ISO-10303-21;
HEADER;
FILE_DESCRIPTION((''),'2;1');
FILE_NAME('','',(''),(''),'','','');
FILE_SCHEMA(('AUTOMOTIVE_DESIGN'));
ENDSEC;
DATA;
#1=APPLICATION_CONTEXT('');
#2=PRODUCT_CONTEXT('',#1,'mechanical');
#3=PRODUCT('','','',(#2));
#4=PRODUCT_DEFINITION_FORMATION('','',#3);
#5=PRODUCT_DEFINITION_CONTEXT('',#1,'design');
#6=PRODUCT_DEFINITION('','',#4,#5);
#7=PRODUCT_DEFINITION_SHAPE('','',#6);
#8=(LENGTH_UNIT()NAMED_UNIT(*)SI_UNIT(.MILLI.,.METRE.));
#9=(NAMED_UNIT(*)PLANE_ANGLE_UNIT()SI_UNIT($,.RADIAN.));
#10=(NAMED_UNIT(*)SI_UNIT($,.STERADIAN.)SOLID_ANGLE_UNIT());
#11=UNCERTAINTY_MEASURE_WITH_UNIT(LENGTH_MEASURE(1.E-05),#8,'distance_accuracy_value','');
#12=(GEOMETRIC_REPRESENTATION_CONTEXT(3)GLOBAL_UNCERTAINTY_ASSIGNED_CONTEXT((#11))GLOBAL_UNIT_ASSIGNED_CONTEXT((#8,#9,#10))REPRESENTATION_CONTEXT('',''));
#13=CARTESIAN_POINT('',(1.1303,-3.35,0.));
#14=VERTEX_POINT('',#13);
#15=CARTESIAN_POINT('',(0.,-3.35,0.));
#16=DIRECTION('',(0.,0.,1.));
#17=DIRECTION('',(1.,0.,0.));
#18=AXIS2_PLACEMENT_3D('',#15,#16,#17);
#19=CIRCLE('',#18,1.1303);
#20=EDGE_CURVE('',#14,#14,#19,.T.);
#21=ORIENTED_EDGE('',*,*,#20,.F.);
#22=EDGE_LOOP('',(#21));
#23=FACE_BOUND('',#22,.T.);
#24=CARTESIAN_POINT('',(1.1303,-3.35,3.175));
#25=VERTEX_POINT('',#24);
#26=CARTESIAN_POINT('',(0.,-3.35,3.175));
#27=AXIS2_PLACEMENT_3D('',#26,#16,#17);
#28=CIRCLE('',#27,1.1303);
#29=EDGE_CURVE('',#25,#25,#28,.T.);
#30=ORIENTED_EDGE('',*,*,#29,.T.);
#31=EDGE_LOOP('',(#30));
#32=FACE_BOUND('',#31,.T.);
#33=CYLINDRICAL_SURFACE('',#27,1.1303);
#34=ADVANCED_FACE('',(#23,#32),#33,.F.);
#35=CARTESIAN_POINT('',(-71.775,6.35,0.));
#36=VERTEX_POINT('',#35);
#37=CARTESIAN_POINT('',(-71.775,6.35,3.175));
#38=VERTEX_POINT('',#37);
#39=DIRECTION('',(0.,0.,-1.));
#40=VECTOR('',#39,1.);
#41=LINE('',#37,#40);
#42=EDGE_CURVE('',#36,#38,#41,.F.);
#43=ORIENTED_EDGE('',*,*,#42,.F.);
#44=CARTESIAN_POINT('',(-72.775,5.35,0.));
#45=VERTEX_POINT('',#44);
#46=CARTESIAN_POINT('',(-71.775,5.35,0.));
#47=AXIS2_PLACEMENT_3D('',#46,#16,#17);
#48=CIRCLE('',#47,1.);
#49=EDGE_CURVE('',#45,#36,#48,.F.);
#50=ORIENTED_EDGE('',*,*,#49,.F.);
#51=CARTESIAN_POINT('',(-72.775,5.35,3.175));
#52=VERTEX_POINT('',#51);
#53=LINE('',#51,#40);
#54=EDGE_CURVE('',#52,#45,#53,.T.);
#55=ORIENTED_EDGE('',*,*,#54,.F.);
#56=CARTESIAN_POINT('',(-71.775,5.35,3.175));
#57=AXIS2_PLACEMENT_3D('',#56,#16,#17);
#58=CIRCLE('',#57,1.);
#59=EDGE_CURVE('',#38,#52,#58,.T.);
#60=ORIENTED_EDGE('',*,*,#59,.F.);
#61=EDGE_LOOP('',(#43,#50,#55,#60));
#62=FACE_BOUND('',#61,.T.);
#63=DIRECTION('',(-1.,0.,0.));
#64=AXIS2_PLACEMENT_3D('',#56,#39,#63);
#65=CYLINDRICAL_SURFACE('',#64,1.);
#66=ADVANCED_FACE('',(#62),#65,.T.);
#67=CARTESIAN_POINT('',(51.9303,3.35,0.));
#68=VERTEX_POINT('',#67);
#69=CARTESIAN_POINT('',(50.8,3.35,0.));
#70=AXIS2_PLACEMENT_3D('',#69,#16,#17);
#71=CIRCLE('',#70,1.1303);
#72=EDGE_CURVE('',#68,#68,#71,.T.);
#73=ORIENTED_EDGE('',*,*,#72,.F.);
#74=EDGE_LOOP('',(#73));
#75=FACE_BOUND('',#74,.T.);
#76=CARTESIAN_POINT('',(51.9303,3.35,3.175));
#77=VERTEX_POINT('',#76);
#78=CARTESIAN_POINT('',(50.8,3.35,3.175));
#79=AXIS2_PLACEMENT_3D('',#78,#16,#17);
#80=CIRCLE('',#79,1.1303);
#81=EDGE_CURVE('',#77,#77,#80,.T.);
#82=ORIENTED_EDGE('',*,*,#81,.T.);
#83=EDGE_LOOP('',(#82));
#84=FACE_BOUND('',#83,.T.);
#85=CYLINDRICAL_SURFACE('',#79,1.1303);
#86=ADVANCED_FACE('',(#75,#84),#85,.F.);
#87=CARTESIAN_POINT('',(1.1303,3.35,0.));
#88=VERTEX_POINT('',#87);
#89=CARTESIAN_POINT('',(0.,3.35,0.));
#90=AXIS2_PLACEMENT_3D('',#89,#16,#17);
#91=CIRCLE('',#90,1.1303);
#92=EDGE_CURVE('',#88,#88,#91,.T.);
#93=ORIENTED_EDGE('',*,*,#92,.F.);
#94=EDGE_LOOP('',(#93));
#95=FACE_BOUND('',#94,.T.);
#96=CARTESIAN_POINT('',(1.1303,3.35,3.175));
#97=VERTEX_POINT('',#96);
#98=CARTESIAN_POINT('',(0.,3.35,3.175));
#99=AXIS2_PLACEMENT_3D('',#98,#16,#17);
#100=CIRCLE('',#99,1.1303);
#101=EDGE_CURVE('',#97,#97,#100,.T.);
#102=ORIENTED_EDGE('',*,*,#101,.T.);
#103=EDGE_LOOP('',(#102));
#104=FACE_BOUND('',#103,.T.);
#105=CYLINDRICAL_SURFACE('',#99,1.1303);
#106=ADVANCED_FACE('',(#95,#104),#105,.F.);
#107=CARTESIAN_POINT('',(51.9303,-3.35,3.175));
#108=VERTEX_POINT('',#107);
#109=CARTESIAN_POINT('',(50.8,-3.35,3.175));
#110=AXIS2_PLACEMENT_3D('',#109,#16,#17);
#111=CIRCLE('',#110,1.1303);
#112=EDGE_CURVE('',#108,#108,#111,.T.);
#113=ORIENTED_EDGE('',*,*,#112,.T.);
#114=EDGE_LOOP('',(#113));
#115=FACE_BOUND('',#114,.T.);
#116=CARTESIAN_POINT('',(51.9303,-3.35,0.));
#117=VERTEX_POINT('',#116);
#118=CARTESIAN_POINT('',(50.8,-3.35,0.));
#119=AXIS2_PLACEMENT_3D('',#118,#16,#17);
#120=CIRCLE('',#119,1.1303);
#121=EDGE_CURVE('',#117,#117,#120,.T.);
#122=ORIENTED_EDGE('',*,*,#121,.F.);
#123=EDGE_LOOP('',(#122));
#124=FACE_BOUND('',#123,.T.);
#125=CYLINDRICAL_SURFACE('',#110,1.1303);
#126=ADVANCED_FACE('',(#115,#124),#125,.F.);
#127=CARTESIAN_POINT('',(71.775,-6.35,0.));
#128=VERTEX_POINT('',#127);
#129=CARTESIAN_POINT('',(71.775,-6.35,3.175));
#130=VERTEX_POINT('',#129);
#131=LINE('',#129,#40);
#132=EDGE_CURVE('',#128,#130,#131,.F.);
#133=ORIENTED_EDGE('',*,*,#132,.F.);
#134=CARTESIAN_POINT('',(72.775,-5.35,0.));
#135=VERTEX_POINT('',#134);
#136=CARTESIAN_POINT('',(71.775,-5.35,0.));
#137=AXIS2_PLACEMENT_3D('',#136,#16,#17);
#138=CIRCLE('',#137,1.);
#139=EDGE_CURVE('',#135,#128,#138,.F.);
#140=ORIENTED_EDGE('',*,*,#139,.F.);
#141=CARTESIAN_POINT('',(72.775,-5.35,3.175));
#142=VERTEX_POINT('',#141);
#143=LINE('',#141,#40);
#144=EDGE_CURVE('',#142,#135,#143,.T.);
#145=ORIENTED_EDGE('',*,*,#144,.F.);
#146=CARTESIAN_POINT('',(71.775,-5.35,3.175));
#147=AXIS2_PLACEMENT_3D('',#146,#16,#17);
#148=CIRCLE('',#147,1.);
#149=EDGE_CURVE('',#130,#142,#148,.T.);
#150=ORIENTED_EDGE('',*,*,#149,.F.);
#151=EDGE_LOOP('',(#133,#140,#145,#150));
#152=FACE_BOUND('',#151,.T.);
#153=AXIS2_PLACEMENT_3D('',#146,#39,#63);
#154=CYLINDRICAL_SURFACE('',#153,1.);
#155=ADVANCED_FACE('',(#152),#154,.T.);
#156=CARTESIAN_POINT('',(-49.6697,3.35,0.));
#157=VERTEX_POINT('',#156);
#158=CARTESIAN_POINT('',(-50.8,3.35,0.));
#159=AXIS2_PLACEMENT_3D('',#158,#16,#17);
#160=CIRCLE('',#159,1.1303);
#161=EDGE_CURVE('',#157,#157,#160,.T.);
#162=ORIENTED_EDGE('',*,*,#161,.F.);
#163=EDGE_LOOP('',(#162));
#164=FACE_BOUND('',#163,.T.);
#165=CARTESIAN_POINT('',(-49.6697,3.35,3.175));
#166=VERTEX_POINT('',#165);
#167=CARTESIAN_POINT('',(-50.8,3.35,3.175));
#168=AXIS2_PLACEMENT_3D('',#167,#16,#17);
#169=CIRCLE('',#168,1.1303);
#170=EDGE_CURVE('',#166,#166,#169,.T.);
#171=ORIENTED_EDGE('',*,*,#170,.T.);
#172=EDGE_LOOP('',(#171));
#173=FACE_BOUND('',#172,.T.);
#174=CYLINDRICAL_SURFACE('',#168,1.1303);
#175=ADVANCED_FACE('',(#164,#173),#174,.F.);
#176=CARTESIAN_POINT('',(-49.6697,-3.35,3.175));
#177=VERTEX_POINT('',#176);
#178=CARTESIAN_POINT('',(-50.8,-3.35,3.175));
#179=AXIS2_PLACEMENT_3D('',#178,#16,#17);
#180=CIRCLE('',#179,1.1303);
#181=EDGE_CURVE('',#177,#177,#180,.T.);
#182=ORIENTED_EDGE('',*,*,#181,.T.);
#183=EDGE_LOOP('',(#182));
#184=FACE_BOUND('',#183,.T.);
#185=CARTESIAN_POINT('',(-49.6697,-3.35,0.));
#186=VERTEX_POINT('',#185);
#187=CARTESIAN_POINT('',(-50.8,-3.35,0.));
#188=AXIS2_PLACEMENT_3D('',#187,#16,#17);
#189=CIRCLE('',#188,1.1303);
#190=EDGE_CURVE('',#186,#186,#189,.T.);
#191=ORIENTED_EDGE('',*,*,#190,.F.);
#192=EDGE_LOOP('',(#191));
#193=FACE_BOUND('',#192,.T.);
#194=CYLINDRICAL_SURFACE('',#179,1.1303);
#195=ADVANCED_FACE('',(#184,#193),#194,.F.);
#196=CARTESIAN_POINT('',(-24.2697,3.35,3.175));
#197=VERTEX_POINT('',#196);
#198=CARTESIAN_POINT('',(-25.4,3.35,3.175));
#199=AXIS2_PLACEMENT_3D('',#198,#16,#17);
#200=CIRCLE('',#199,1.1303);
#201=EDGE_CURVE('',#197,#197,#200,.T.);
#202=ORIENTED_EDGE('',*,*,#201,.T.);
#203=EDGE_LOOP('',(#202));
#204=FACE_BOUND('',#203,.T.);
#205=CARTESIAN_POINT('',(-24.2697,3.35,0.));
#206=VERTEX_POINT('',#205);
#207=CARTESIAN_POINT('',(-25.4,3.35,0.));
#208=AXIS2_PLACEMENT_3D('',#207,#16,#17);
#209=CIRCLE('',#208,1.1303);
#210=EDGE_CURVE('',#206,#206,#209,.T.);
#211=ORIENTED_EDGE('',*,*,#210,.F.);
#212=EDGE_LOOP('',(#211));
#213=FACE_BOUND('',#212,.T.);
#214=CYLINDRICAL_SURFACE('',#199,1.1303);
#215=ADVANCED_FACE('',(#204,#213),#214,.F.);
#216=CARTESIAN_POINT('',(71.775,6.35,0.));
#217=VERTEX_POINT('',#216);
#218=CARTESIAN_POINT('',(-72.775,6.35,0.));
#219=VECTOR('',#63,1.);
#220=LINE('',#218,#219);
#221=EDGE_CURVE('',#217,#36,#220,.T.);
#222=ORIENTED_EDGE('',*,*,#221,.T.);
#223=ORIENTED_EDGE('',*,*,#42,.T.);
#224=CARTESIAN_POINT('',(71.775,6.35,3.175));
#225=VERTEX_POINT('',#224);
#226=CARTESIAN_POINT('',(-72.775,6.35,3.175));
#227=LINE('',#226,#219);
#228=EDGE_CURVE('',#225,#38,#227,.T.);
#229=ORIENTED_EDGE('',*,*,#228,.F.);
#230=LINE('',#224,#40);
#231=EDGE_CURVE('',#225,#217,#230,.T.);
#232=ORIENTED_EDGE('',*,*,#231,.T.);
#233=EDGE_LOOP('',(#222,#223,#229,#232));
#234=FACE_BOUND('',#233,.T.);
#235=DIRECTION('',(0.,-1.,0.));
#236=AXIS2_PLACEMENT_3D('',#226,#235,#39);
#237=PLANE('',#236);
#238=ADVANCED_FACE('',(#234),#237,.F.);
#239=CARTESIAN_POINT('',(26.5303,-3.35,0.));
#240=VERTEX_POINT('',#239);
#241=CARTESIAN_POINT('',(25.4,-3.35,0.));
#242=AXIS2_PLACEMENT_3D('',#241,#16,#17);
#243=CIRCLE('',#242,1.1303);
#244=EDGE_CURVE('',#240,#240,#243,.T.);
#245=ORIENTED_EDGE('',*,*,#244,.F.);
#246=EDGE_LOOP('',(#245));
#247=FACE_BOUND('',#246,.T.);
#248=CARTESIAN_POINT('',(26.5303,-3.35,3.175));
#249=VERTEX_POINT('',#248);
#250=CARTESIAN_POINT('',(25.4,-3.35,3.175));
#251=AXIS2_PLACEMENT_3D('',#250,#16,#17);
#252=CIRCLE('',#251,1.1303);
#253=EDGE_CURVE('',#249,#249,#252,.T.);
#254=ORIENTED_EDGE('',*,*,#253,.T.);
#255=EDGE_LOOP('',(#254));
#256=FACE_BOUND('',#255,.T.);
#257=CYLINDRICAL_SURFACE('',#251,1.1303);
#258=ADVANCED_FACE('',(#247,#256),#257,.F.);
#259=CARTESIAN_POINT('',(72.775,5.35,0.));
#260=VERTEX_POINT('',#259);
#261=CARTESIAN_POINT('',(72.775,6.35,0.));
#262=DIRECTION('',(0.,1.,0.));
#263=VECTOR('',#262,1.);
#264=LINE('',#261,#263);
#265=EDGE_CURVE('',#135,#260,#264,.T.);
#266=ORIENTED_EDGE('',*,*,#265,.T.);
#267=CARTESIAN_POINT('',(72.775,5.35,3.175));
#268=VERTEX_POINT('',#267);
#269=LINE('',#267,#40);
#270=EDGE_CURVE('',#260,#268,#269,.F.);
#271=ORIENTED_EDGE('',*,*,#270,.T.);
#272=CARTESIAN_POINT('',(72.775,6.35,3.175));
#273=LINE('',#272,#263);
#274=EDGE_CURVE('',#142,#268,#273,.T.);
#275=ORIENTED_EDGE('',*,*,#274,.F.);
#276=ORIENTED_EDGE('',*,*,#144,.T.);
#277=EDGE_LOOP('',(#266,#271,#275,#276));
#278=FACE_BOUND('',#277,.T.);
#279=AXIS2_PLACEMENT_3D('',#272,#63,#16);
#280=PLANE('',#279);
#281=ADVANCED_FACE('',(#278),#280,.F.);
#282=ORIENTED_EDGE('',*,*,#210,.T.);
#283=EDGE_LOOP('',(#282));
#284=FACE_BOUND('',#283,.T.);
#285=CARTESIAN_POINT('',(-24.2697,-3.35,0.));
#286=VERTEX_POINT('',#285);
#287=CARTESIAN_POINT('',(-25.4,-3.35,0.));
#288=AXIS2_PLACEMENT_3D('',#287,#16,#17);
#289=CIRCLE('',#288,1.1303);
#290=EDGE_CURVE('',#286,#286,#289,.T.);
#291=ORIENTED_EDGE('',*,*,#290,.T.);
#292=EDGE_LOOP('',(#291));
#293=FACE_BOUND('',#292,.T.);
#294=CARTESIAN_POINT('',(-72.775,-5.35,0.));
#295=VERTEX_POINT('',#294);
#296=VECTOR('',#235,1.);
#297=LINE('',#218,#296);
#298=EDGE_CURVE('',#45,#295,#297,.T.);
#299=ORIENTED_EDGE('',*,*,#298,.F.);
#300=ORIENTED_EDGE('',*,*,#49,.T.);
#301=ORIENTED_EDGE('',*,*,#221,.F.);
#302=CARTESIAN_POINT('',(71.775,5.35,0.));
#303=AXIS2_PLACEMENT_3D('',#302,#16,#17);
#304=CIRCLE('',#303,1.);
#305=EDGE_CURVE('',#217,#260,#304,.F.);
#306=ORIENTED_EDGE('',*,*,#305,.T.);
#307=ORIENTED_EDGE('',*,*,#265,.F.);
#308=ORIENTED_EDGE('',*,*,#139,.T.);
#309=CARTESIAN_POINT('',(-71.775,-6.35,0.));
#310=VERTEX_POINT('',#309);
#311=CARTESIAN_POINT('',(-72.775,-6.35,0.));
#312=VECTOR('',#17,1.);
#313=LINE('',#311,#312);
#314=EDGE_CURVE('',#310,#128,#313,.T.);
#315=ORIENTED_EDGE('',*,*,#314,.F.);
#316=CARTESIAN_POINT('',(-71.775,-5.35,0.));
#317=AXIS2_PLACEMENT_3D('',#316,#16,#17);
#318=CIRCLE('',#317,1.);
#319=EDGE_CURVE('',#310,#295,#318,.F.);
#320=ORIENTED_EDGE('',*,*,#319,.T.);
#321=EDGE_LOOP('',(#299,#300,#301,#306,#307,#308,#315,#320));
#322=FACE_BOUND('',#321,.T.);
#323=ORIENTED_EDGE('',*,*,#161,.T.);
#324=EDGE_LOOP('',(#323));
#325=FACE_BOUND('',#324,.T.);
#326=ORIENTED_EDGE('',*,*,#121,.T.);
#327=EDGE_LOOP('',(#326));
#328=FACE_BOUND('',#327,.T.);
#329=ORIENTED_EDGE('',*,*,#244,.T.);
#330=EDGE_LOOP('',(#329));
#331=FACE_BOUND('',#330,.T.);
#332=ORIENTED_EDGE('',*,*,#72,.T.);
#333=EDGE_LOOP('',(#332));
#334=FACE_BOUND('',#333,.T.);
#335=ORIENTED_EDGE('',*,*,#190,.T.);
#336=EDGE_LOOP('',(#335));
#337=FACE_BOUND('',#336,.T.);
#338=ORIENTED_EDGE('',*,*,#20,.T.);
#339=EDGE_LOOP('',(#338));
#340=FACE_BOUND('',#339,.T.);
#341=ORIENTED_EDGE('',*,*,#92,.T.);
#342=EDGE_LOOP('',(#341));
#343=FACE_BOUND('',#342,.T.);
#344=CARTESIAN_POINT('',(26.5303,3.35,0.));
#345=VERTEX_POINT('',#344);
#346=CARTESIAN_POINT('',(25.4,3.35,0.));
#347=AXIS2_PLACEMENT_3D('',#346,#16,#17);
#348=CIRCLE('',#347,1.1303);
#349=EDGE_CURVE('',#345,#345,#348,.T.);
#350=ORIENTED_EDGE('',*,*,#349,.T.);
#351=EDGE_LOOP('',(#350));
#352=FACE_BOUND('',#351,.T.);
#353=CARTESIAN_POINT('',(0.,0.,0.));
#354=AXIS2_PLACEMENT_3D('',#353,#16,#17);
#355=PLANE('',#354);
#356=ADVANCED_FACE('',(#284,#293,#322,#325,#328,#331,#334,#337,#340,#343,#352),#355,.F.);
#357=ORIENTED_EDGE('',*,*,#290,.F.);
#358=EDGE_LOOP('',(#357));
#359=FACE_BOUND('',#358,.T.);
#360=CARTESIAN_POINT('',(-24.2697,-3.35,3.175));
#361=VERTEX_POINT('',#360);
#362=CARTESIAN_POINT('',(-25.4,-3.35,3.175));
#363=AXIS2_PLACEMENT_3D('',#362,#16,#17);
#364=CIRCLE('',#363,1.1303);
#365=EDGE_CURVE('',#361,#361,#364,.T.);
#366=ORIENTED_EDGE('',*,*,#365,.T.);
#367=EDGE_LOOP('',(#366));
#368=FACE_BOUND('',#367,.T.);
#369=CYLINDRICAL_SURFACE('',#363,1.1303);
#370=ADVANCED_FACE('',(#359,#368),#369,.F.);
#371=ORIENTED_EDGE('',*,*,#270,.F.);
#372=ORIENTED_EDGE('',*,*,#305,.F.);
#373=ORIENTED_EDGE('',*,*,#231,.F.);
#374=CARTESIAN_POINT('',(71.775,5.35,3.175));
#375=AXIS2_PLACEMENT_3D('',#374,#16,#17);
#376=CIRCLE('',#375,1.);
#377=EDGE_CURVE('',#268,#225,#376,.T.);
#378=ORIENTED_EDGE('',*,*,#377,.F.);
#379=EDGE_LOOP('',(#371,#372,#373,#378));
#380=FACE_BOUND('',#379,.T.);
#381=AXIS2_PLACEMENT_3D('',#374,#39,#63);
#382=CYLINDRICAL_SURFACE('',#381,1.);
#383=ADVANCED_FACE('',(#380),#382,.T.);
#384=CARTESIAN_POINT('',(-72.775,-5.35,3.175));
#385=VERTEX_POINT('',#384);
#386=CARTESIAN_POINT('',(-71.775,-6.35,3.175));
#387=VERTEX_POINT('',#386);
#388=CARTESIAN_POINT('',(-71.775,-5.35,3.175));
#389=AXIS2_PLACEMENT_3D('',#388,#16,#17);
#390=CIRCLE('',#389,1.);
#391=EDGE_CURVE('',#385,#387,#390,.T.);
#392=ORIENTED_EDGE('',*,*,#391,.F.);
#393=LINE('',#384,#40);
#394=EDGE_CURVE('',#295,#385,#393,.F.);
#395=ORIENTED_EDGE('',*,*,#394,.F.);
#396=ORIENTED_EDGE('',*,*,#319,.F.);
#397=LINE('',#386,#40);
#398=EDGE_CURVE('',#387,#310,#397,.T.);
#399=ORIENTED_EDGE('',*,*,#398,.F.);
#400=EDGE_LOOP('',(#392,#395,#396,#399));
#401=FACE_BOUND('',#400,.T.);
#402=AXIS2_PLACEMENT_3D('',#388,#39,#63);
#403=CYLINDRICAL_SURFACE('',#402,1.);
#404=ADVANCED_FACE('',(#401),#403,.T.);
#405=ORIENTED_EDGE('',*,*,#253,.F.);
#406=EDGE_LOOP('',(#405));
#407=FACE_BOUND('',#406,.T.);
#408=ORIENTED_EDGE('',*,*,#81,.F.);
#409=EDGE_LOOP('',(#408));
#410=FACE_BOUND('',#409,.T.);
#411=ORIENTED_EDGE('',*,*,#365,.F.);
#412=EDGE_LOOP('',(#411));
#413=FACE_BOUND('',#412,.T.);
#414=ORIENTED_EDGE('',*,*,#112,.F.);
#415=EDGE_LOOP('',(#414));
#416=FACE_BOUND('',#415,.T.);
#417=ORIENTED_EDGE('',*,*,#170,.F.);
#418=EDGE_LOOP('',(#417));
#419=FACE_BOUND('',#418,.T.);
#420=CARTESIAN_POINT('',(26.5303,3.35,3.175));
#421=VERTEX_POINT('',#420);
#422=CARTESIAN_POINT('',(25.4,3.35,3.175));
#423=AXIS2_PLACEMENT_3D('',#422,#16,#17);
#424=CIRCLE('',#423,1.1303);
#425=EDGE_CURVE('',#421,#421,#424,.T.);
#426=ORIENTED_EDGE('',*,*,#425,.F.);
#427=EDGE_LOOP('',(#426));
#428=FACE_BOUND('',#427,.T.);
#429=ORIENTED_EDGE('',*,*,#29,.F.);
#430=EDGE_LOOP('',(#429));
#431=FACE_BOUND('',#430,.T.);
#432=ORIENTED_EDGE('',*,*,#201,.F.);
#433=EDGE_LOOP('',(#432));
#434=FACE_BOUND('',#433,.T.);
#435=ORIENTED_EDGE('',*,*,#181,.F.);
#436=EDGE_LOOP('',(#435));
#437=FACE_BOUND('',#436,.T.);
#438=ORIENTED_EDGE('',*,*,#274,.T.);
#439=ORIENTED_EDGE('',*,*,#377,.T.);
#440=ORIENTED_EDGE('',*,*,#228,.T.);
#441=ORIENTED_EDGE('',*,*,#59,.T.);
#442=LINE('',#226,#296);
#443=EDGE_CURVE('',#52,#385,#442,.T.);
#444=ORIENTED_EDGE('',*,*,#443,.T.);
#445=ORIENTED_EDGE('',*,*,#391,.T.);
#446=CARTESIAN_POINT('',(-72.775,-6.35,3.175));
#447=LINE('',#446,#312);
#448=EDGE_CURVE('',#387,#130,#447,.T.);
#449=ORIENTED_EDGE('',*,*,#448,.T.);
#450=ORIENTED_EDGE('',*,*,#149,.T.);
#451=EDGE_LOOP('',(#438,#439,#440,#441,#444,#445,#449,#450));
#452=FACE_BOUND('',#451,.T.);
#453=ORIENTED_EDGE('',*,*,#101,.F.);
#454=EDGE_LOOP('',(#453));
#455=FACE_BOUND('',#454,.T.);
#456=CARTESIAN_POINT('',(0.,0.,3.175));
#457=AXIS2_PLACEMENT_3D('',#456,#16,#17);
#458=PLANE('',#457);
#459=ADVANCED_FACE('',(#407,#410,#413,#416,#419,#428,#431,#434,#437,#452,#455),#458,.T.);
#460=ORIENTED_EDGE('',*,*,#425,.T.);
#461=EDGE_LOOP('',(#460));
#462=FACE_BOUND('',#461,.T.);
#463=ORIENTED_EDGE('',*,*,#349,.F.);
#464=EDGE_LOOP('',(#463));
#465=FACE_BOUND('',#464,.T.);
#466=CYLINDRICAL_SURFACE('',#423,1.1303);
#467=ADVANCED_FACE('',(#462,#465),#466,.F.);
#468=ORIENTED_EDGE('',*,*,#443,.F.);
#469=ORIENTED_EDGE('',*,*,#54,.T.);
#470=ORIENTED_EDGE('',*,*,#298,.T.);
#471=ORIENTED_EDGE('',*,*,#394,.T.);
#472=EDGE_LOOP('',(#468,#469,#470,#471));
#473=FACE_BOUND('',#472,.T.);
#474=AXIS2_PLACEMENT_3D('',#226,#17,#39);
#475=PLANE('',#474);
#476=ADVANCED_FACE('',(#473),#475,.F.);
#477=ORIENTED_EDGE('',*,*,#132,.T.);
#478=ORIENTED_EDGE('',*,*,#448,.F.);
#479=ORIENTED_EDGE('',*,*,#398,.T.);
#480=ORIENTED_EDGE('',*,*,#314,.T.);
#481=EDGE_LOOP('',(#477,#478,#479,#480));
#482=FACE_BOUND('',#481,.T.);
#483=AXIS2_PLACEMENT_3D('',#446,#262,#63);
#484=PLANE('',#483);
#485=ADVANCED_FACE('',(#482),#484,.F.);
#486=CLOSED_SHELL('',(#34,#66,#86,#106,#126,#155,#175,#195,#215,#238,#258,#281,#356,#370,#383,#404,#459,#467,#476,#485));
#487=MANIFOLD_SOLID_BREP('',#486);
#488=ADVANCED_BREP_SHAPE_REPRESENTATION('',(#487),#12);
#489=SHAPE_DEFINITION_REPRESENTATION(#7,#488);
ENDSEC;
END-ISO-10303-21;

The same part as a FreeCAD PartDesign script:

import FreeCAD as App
import Part
import Sketcher
Q = App.Units.Quantity


def edges_at(feature, points):
    """Names of the edges that pass closest to the given points."""
    edges = feature.Shape.Edges
    near = lambda p: min(range(len(edges)), key=lambda i: edges[i].distToShape(Part.Vertex(*p))[0])
    return sorted({f"Edge{near(p) + 1}" for p in points})

doc = App.newDocument("Part")
body = doc.addObject("PartDesign::Body", "Body")

# Sketch on XY plane
sketch1 = body.newObject("Sketcher::SketchObject", "Sketch")
sketch1.AttachmentSupport = (doc.getObject("XY_Plane"), [""])
sketch1.MapMode = "FlatFace"
sketch1.addGeometry([
    Part.LineSegment(App.Vector(-73, 6, 0), App.Vector(-73, -6, 0)),
    Part.LineSegment(App.Vector(-73, -6, 0), App.Vector(73, -6, 0)),
    Part.LineSegment(App.Vector(73, -6, 0), App.Vector(73, 6, 0)),
    Part.LineSegment(App.Vector(73, 6, 0), App.Vector(-73, 6, 0)),
], False)
sketch1.addConstraint([
    Sketcher.Constraint("Coincident", 0, 2, 1, 1),
    Sketcher.Constraint("Coincident", 1, 2, 2, 1),
    Sketcher.Constraint("Coincident", 2, 2, 3, 1),
    Sketcher.Constraint("Coincident", 3, 2, 0, 1),
    Sketcher.Constraint("Vertical", 0),
    Sketcher.Constraint("Horizontal", 1),
    Sketcher.Constraint("Vertical", 2),
    Sketcher.Constraint("Horizontal", 3),
    Sketcher.Constraint("Symmetric", 0, 2, 2, 2, -1, 1),
    Sketcher.Constraint("DistanceY", 0, 2, 0, 1, Q("0.5 in")),
    Sketcher.Constraint("DistanceX", 1, 1, 1, 2, 145.55),
])
pad1 = body.newObject("PartDesign::Pad", "Pad")
pad1.Profile = sketch1
pad1.Length = Q("0.125 in")

# Sketch on XY plane
sketch2 = body.newObject("Sketcher::SketchObject", "Sketch001")
sketch2.AttachmentSupport = (doc.getObject("XY_Plane"), [""])
sketch2.MapMode = "FlatFace"
sketch2.AttachmentOffset = App.Placement(App.Vector(0, 0, 0.125 * 25.4), App.Rotation())
sketch2.addGeometry([
    Part.Circle(App.Vector(-50.8, 3.4, 0), App.Vector(0, 0, 1), 1.1),
    Part.Circle(App.Vector(-50.8, -3.4, 0), App.Vector(0, 0, 1), 1.1),
], False)
sketch2.addConstraint([
    Sketcher.Constraint("Equal", 0, 1),
    Sketcher.Constraint("Symmetric", 0, 3, 1, 3, -1),
    Sketcher.Constraint("Diameter", 0, Q("0.089 in")),
    Sketcher.Constraint("DistanceX", 0, 3, -1, 1, Q("2 in")),
    Sketcher.Constraint("DistanceY", -1, 1, 0, 3, 3.35),
])
doc.recompute()
hole = body.newObject("PartDesign::Hole", "Hole")
hole.Profile = sketch2
hole.ThreadType = "None"
hole.Diameter = Q("0.089 in")
hole.DepthType = "ThroughAll"
doc.recompute()

linearpattern = body.newObject("PartDesign::LinearPattern", "LinearPattern")
linearpattern.Originals = [hole]
linearpattern.Direction = (doc.getObject("X_Axis"), [""])
linearpattern.Mode = "offset"
linearpattern.Offset = Q("1 in")
linearpattern.Occurrences = 5
body.Tip = linearpattern
doc.recompute()

fillet = body.newObject("PartDesign::Fillet", "Fillet")
fillet.Base = (linearpattern, edges_at(linearpattern, [
    (-72.775, 6.35, 1.587),
    (72.775, 6.35, 1.587),
    (72.775, -6.35, 1.587),
    (-72.775, -6.35, 1.587),
]))
fillet.Radius = 1

doc.recompute()
